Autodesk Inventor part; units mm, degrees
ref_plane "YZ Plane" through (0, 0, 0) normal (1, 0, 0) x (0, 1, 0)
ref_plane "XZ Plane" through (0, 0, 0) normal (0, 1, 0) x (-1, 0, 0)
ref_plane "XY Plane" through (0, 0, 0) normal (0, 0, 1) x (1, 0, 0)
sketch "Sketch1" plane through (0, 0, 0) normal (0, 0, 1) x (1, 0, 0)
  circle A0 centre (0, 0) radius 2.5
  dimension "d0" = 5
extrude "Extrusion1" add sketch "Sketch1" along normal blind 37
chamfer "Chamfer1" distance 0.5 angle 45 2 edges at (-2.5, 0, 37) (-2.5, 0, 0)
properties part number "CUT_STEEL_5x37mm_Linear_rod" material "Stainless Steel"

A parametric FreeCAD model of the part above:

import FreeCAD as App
import Part
import Sketcher


def edges_at(feature, points):
    """Names of the edges that pass closest to the given points."""
    edges = feature.Shape.Edges
    near = lambda p: min(range(len(edges)), key=lambda i: edges[i].distToShape(Part.Vertex(*p))[0])
    return sorted({f"Edge{near(p) + 1}" for p in points})

doc = App.newDocument("Part")
body = doc.addObject("PartDesign::Body", "Body")

# Sketch on XY plane
sketch1 = body.newObject("Sketcher::SketchObject", "Sketch")
sketch1.AttachmentSupport = (doc.getObject("XY_Plane"), [""])
sketch1.MapMode = "FlatFace"
sketch1.addGeometry(Part.Circle(App.Vector(0, 0, 0), App.Vector(0, 0, 1), 2.5), False)
sketch1.addConstraint(Sketcher.Constraint("Coincident", 0, 3, -1, 1))
sketch1.addConstraint(Sketcher.Constraint("Diameter", 0, 5.0))
pad1 = body.newObject("PartDesign::Pad", "Pad")
pad1.Profile = sketch1
pad1.Length = 37
doc.recompute()

chamfer = body.newObject("PartDesign::Chamfer", "Chamfer")
chamfer.Base = (pad1, edges_at(pad1, [(-2.5, 0, 37), (-2.5, 0, 0)]))
chamfer.Size = 0.5

doc.recompute()
